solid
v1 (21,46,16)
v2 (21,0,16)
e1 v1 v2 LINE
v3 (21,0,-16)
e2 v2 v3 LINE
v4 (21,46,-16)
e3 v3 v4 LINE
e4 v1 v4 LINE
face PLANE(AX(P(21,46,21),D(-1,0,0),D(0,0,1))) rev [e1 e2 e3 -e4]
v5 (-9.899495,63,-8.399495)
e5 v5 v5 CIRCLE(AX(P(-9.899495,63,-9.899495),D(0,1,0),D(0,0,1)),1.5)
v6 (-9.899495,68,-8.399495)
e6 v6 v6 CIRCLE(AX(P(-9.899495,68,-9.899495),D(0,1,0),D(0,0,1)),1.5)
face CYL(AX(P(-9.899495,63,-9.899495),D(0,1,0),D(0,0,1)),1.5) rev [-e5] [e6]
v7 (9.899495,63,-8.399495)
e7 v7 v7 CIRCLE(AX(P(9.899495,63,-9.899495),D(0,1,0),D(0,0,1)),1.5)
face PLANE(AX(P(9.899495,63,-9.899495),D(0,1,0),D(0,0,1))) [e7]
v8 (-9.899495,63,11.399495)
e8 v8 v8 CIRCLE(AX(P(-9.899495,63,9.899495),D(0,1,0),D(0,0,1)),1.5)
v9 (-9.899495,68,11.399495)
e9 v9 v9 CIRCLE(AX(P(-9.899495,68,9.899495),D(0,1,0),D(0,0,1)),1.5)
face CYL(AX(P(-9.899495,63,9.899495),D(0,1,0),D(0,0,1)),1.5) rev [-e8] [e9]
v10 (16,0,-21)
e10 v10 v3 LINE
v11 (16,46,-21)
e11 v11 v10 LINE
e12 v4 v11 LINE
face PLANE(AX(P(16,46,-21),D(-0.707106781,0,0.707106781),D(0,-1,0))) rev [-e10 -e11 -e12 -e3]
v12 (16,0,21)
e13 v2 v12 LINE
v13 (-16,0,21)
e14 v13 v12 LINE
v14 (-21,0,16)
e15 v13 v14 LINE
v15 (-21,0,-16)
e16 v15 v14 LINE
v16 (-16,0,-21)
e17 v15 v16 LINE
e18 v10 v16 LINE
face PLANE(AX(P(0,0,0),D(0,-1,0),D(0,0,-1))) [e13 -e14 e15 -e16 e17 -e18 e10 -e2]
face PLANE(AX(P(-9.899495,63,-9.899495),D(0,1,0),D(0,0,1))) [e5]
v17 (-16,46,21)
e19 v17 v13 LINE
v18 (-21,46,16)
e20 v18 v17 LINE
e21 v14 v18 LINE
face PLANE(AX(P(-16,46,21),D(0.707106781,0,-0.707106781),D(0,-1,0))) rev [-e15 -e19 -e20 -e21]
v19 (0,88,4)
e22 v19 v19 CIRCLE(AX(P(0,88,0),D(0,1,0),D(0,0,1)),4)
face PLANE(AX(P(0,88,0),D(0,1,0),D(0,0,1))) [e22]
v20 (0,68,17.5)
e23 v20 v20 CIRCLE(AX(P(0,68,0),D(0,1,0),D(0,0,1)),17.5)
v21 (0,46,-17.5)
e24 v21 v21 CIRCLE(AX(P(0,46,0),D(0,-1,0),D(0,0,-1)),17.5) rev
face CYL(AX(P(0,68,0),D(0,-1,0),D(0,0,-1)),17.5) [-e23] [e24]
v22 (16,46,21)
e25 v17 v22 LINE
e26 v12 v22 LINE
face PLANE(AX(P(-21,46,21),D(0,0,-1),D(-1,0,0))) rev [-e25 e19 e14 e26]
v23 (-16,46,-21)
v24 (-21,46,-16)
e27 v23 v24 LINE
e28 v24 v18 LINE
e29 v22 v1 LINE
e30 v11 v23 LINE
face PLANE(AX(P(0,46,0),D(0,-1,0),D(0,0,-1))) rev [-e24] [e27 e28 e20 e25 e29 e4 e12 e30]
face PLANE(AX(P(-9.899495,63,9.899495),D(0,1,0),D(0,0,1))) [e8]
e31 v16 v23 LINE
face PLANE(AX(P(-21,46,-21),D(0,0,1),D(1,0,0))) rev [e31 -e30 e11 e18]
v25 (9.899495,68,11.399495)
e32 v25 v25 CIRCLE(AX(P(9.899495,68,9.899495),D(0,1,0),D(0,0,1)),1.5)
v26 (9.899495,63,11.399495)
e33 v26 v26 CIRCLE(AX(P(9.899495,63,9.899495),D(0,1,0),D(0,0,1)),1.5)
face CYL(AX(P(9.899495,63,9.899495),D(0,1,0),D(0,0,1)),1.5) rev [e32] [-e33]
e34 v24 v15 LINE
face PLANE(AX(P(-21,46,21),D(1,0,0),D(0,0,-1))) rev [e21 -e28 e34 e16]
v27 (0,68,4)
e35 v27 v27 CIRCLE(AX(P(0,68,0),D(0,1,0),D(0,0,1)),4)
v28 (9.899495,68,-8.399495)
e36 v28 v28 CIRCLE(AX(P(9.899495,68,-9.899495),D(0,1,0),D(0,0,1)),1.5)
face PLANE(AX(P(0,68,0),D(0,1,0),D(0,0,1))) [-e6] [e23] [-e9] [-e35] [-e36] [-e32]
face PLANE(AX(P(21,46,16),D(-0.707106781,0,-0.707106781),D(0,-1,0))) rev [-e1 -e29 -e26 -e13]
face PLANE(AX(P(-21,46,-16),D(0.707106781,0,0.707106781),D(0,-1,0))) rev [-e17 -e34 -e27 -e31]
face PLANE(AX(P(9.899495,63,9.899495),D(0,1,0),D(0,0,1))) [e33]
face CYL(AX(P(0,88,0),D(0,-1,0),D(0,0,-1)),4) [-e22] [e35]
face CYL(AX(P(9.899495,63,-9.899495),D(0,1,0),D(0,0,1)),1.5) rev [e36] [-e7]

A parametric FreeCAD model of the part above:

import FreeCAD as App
import Part
import Sketcher

V = App.Vector
Q = App.Units.Quantity


def edges_at(feature, points):
    """Names of the edges that pass closest to the given points."""
    edges = feature.Shape.Edges
    near = lambda p: min(range(len(edges)), key=lambda i: edges[i].distToShape(Part.Vertex(*p))[0])
    return sorted({f"Edge{near(p) + 1}" for p in points})


def add_polygon(sketch, points):
    """Adds a closed chain of lines whose ends are joined by coincident constraints."""
    first, n = sketch.GeometryCount, len(points)
    for a, b in zip(points, points[1:] + points[:1]):
        sketch.addGeometry(Part.LineSegment(App.Vector(*a, 0), App.Vector(*b, 0)), False)
    for i in range(n):
        sketch.addConstraint(Sketcher.Constraint("Coincident", first + i, 2, first + (i + 1) % n, 1))

doc = App.newDocument("Part")
body = doc.addObject("PartDesign::Body", "Body")

# Sketch on XZ plane
sketch1 = body.newObject("Sketcher::SketchObject", "Sketch")
sketch1.AttachmentSupport = (doc.getObject("XZ_Plane"), [""])
sketch1.MapMode = "FlatFace"
add_polygon(sketch1, [(-21, -21), (-21, 21), (21, 21), (21, -21)])  # lines 0-3
sketch1.addConstraint([
    Sketcher.Constraint("Vertical", 0),
    Sketcher.Constraint("Horizontal", 1),
    Sketcher.Constraint("Vertical", 2),
    Sketcher.Constraint("Horizontal", 3),
    Sketcher.Constraint("Symmetric", 0, 2, 2, 2, -1, 1),
    Sketcher.Constraint("Equal", 3, 0),
    Sketcher.Constraint("DistanceX", 1, 1, 1, 2, Q("42 mm")),
])
pad1 = body.newObject("PartDesign::Pad", "Pad")
pad1.Profile = sketch1
pad1.Length = 46
pad1.Reversed = True
doc.recompute()

chamfer = body.newObject("PartDesign::Chamfer", "Chamfer")
chamfer.Base = (pad1, edges_at(pad1, [
    (21, 23, 21),
    (-21, 23, 21),
    (-21, 23, -21),
    (21, 23, -21),
]))
chamfer.Size = 5

# Sketch on XZ plane
sketch2 = body.newObject("Sketcher::SketchObject", "Sketch001")
sketch2.AttachmentSupport = (doc.getObject("XZ_Plane"), [""])
sketch2.MapMode = "FlatFace"
sketch2.AttachmentOffset = App.Placement(V(0, 0, -46), App.Rotation())
sketch2.addGeometry(Part.Circle(V(0, 0, 0), V(0, 0, 1), 17.5), False)
sketch2.addConstraint([
    Sketcher.Constraint("Coincident", 0, 3, -1, 1),
    Sketcher.Constraint("Diameter", 0, Q("35 mm")),
])
pad2 = body.newObject("PartDesign::Pad", "Pad001")
pad2.Profile = sketch2
pad2.Length = 22
pad2.Reversed = True

# Sketch on XZ plane
sketch3 = body.newObject("Sketcher::SketchObject", "Sketch002")
sketch3.AttachmentSupport = (doc.getObject("XZ_Plane"), [""])
sketch3.MapMode = "FlatFace"
sketch3.AttachmentOffset = App.Placement(V(0, 0, -68), App.Rotation())
sketch3.addGeometry(Part.Circle(V(0, 0, 0), V(0, 0, 1), 4), False)
sketch3.addConstraint([
    Sketcher.Constraint("Coincident", 0, 3, -1, 1),
    Sketcher.Constraint("Diameter", 0, Q("8 mm")),
])
pad3 = body.newObject("PartDesign::Pad", "Pad002")
pad3.Profile = sketch3
pad3.Length = 20
pad3.Reversed = True

# Sketch on XZ plane
sketch4 = body.newObject("Sketcher::SketchObject", "Sketch003")
sketch4.AttachmentSupport = (doc.getObject("XZ_Plane"), [""])
sketch4.MapMode = "FlatFace"
sketch4.AttachmentOffset = App.Placement(V(0, 0, -68), App.Rotation())
sketch4.addGeometry([
    Part.Circle(V(-9.899495, -9.899495, 0), V(0, 0, 1), 1.5),
    Part.Circle(V(9.899495, -9.899495, 0), V(0, 0, 1), 1.5),
    Part.Circle(V(9.899495, 9.899495, 0), V(0, 0, 1), 1.5),
    Part.Circle(V(-9.899495, 9.899495, 0), V(0, 0, 1), 1.5),
], False)
sketch4.addConstraint([
    Sketcher.Constraint("Equal", 0, 1),
    Sketcher.Constraint("Equal", 1, 2),
    Sketcher.Constraint("Equal", 2, 3),
    Sketcher.Constraint("Symmetric", 0, 3, 2, 3, -1, 1),
    Sketcher.Constraint("Symmetric", 1, 3, 3, 3, -1, 1),
    Sketcher.Constraint("Symmetric", 0, 3, 1, 3, -2),
    Sketcher.Constraint("Diameter", 0, Q("3 mm")),
    Sketcher.Constraint("DistanceX", 0, 3, 1, 3, Q("19.79899 mm")),
    Sketcher.Constraint("DistanceY", 1, 3, 2, 3, Q("19.79899 mm")),
])
pocket1 = body.newObject("PartDesign::Pocket", "Pocket")
pocket1.Profile = sketch4
pocket1.Length = 5
pocket1.Reversed = True

doc.recompute()
